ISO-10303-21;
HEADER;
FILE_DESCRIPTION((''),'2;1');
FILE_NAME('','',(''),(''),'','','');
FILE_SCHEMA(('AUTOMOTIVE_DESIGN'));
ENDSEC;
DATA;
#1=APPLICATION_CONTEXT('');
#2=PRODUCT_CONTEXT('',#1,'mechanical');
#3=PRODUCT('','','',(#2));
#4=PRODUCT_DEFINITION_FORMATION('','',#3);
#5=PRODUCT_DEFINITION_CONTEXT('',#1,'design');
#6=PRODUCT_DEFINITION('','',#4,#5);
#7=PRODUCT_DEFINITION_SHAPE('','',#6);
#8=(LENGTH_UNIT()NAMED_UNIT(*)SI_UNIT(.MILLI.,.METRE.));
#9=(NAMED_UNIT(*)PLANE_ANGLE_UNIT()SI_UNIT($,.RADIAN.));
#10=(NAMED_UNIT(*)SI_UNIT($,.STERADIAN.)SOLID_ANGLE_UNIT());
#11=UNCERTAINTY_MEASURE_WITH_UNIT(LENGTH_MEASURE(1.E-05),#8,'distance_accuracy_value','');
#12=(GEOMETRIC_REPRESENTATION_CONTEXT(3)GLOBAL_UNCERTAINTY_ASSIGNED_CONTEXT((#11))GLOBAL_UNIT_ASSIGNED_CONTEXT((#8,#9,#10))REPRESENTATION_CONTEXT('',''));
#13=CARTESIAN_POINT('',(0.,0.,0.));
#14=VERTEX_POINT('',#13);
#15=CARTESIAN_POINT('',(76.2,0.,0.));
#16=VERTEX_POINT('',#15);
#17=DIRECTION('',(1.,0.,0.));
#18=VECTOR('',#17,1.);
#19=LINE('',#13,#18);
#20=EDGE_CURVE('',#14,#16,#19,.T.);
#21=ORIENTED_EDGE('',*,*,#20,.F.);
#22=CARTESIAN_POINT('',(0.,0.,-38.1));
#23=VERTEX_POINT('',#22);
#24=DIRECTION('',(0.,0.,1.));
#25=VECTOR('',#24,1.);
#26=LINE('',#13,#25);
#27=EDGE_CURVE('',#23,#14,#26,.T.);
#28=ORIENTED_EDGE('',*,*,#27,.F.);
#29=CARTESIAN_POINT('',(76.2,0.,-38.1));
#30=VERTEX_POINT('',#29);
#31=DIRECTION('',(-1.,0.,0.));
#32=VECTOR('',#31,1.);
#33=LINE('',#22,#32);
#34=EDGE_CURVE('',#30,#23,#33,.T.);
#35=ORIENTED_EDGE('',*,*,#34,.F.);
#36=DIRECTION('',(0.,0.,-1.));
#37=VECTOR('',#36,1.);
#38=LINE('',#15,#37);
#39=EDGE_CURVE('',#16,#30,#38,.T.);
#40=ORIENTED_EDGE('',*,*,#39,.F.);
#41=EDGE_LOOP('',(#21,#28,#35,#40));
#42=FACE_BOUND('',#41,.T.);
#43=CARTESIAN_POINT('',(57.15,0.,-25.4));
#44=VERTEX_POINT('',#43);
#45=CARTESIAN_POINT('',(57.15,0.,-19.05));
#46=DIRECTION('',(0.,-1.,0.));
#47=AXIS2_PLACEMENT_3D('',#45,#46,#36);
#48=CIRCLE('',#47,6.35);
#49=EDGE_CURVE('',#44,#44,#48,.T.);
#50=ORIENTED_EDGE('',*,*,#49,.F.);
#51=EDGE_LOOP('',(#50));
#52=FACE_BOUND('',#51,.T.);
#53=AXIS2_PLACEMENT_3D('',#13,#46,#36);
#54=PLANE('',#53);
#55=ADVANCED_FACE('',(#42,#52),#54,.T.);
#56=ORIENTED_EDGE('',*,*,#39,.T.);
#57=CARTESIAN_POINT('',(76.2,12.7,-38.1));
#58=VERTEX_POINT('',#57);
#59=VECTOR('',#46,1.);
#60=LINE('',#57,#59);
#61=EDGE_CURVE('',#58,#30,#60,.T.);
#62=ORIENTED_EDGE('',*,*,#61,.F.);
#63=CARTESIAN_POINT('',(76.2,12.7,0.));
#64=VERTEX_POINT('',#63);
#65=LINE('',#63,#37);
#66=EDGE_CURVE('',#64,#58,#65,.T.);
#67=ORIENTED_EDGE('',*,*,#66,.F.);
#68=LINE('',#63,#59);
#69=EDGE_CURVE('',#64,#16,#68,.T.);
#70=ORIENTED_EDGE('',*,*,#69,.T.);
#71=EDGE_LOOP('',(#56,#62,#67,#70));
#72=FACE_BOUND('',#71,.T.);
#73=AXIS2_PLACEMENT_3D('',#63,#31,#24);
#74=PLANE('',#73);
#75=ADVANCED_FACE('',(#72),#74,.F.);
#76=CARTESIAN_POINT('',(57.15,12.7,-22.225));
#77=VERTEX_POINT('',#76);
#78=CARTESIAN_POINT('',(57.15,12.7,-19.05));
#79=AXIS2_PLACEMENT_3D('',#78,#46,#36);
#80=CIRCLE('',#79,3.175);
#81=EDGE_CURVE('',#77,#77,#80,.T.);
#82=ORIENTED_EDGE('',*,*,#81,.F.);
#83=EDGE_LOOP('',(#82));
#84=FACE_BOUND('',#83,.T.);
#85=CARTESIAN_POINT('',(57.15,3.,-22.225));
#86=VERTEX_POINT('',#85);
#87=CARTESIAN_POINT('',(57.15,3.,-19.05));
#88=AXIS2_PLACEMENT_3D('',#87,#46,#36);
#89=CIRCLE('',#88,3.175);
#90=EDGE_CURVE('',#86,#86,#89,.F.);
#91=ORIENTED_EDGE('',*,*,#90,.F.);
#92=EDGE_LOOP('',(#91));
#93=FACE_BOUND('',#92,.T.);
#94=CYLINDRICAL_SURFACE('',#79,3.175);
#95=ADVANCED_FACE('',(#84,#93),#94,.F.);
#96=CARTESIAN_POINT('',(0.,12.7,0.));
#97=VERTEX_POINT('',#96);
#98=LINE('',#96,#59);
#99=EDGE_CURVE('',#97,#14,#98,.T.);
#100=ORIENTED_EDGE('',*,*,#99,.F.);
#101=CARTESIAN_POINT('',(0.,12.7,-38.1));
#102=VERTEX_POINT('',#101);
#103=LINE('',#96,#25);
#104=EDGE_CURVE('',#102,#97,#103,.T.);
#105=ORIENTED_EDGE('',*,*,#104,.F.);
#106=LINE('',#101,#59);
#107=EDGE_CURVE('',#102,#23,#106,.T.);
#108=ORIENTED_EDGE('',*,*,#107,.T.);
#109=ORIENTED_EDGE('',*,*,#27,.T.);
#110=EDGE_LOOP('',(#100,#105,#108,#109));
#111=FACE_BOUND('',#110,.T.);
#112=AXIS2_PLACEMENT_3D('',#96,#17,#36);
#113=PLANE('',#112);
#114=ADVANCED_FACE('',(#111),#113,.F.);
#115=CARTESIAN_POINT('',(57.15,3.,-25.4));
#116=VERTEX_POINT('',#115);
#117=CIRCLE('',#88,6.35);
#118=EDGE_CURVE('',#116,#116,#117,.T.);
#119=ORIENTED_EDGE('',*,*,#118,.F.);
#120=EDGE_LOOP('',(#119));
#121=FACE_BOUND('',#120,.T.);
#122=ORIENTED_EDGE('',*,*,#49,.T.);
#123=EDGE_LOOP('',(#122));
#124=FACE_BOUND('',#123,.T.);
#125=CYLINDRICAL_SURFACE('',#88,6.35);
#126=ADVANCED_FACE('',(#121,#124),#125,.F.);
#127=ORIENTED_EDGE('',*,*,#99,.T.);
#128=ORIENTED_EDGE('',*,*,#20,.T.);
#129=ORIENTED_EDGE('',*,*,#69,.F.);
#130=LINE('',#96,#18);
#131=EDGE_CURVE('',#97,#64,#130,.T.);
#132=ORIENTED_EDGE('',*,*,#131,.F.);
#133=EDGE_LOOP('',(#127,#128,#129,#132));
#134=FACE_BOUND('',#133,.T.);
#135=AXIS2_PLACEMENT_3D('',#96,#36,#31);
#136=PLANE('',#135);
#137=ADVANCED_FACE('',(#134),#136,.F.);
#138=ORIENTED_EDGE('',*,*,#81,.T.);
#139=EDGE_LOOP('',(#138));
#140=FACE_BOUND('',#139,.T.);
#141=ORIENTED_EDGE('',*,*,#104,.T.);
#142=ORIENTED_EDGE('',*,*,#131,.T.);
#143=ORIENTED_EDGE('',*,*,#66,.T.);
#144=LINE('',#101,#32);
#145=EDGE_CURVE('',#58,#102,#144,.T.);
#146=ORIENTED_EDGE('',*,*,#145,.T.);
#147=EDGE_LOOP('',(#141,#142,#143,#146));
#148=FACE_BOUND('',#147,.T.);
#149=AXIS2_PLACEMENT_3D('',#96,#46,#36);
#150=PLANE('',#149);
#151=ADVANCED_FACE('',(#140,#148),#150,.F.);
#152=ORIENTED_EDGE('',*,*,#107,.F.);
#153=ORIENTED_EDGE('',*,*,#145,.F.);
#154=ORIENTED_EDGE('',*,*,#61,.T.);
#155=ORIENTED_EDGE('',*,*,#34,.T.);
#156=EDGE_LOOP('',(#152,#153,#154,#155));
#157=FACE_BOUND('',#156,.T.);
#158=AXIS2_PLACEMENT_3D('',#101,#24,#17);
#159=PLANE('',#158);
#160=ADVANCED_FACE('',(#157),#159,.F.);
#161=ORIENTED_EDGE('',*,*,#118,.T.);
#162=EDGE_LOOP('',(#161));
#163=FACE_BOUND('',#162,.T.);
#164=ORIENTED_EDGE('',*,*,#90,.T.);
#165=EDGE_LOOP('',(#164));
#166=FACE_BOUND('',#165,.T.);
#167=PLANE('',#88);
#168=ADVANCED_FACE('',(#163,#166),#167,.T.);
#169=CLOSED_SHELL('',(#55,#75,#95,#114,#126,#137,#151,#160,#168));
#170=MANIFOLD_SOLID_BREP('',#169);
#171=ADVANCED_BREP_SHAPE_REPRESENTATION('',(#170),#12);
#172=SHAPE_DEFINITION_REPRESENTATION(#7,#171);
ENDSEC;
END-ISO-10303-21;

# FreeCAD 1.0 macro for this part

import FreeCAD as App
import Part
import Sketcher
Q = App.Units.Quantity


def add_polygon(sketch, points):
    """Adds a closed chain of lines whose ends are joined by coincident constraints."""
    first, n = sketch.GeometryCount, len(points)
    for a, b in zip(points, points[1:] + points[:1]):
        sketch.addGeometry(Part.LineSegment(App.Vector(*a, 0), App.Vector(*b, 0)), False)
    for i in range(n):
        sketch.addConstraint(Sketcher.Constraint("Coincident", first + i, 2, first + (i + 1) % n, 1))

doc = App.newDocument("Part")
body = doc.addObject("PartDesign::Body", "Body")

# Sketch on XZ plane
sketch1 = doc.addObject("Sketcher::SketchObject", "Sketch")
body.addObject(sketch1)
sketch1.AttachmentSupport = (doc.XZ_Plane, [""])
sketch1.MapMode = "FlatFace"
add_polygon(sketch1, [(0, -38), (0, 0), (76, 0), (76, -38)])  # lines 0-3
sketch1.addConstraint([
    Sketcher.Constraint("Vertical", 0),
    Sketcher.Constraint("Horizontal", 1),
    Sketcher.Constraint("Vertical", 2),
    Sketcher.Constraint("Horizontal", 3),
    Sketcher.Constraint("Coincident", 0, 2, -1, 1),
    Sketcher.Constraint("DistanceX", 1, 1, 1, 2, Q("3 in")),
    Sketcher.Constraint("DistanceY", 0, 1, 0, 2, Q("1.5 in")),
])
pad1 = doc.addObject("PartDesign::Pad", "Pad")
body.addObject(pad1)
pad1.Profile = sketch1
pad1.Length = Q("0.5 in")
pad1.Reversed = True

# Sketch on XZ plane
sketch2 = doc.addObject("Sketcher::SketchObject", "Sketch001")
body.addObject(sketch2)
sketch2.AttachmentSupport = (doc.XZ_Plane, [""])
sketch2.MapMode = "FlatFace"
sketch2.addGeometry(Part.Circle(App.Vector(57.1, -19.1, 0), App.Vector(0, 0, 1), 3.2), False)
sketch2.addConstraint([
    Sketcher.Constraint("Diameter", 0, Q("0.25 in")),
    Sketcher.Constraint("DistanceX", -1, 1, 0, 3, Q("2.25 in")),
    Sketcher.Constraint("DistanceY", 0, 3, -1, 1, Q("0.75 in")),
])
pocket1 = doc.addObject("PartDesign::Pocket", "Pocket")
body.addObject(pocket1)
pocket1.Profile = sketch2
pocket1.Type = "ThroughAll"

# Sketch on XZ plane
sketch3 = doc.addObject("Sketcher::SketchObject", "Sketch002")
body.addObject(sketch3)
sketch3.AttachmentSupport = (doc.XZ_Plane, [""])
sketch3.MapMode = "FlatFace"
sketch3.addGeometry(Part.Circle(App.Vector(57, -19, 0), App.Vector(0, 0, 1), 6), False)
sketch3.addConstraint([
    Sketcher.Constraint("Diameter", 0, Q("0.5 in")),
    Sketcher.Constraint("DistanceX", -1, 1, 0, 3, Q("2.25 in")),
    Sketcher.Constraint("DistanceY", 0, 3, -1, 1, Q("0.75 in")),
])
pocket2 = doc.addObject("PartDesign::Pocket", "Pocket001")
body.addObject(pocket2)
pocket2.Profile = sketch3
pocket2.Length = 3

doc.recompute()
